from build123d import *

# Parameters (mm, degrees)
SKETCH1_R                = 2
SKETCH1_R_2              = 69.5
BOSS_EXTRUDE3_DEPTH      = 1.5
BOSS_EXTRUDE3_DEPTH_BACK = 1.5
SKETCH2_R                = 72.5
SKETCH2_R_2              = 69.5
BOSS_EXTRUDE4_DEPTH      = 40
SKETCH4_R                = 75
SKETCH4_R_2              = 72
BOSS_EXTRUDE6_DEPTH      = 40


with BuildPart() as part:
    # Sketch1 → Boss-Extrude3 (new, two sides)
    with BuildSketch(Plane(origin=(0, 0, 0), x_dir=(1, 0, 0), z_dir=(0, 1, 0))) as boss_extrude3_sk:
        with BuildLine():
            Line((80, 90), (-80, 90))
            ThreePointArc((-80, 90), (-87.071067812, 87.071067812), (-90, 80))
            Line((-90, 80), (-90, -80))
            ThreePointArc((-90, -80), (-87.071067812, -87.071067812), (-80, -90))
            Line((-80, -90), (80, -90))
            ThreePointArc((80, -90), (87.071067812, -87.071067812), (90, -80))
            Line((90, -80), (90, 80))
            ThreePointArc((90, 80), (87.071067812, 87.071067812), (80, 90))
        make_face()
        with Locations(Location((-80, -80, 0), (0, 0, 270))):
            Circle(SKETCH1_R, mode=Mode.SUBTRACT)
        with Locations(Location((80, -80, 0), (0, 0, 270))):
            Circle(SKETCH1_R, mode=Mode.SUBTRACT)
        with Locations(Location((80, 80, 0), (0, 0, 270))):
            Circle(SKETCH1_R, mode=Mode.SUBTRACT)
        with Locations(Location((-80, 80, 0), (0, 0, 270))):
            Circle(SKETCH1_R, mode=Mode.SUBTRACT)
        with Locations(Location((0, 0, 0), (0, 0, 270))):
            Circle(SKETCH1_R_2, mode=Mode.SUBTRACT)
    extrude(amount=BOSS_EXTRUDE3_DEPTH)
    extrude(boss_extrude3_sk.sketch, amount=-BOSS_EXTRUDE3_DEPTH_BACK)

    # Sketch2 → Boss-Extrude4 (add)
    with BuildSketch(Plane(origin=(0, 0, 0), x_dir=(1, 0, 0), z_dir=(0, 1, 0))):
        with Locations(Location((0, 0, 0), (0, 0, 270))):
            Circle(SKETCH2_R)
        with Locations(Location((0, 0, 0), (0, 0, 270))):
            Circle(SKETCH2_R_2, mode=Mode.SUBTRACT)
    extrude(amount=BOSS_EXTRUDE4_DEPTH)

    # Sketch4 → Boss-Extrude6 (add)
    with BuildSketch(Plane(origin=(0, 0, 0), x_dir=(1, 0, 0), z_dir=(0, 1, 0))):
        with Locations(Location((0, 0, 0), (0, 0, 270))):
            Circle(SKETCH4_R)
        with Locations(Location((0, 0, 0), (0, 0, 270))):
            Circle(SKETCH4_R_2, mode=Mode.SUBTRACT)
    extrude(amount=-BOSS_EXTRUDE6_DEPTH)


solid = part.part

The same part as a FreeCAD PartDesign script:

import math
import FreeCAD as App
import Part
import Sketcher

V = App.Vector
Q = App.Units.Quantity

doc = App.newDocument("Part")
body = doc.addObject("PartDesign::Body", "Body")

# Sketch on XZ plane
sketch1 = doc.addObject("Sketcher::SketchObject", "Sketch")
body.addObject(sketch1)
sketch1.AttachmentSupport = (doc.XZ_Plane, [""])
sketch1.MapMode = "FlatFace"
sketch1.addGeometry(Part.LineSegment(V(80, -90, 0), V(-80, -90, 0)), False)
sketch1.addGeometry(Part.ArcOfCircle(Part.Circle(V(-80, -80, 0), V(0, 0, 1), 10), math.radians(180), math.radians(270)), False)
sketch1.addGeometry(Part.LineSegment(V(-90, -80, 0), V(-90, 80, 0)), False)
sketch1.addGeometry(Part.ArcOfCircle(Part.Circle(V(-80, 80, 0), V(0, 0, 1), 10), math.radians(90), math.radians(180)), False)
sketch1.addGeometry(Part.LineSegment(V(-80, 90, 0), V(80, 90, 0)), False)
sketch1.addGeometry(Part.ArcOfCircle(Part.Circle(V(80, 80, 0), V(0, 0, 1), 10), math.radians(0), math.radians(90)), False)
sketch1.addGeometry(Part.LineSegment(V(90, 80, 0), V(90, -80, 0)), False)
sketch1.addGeometry(Part.ArcOfCircle(Part.Circle(V(80, -80, 0), V(0, 0, 1), 10), math.radians(-90), math.radians(0)), False)
sketch1.addGeometry(Part.Circle(V(-80, 80, 0), V(0, 0, 1), 2), False)
sketch1.addGeometry(Part.Circle(V(80, 80, 0), V(0, 0, 1), 2), False)
sketch1.addGeometry(Part.Circle(V(-80, -80, 0), V(0, 0, 1), 2), False)
sketch1.addGeometry(Part.Circle(V(0, 0, 0), V(0, 0, 1), 69.5), False)
sketch1.addGeometry(Part.Circle(V(80, -80, 0), V(0, 0, 1), 2), False)
sketch1.addConstraint(Sketcher.Constraint("Tangent", 0, 2, 1, 2))
sketch1.addConstraint(Sketcher.Constraint("Tangent", 1, 1, 2, 1))
sketch1.addConstraint(Sketcher.Constraint("Tangent", 2, 2, 3, 2))
sketch1.addConstraint(Sketcher.Constraint("Tangent", 3, 1, 4, 1))
sketch1.addConstraint(Sketcher.Constraint("Tangent", 4, 2, 5, 2))
sketch1.addConstraint(Sketcher.Constraint("Tangent", 5, 1, 6, 1))
sketch1.addConstraint(Sketcher.Constraint("Tangent", 6, 2, 7, 2))
sketch1.addConstraint(Sketcher.Constraint("Tangent", 7, 1, 0, 1))
sketch1.addConstraint(Sketcher.Constraint("Horizontal", 0))
sketch1.addConstraint(Sketcher.Constraint("Vertical", 2))
sketch1.addConstraint(Sketcher.Constraint("Horizontal", 4))
sketch1.addConstraint(Sketcher.Constraint("Vertical", 6))
sketch1.addConstraint(Sketcher.Constraint("Coincident", 11, 3, -1, 1))
sketch1.addConstraint(Sketcher.Constraint("Coincident", 8, 3, 3, 3))
sketch1.addConstraint(Sketcher.Constraint("Coincident", 9, 3, 5, 3))
sketch1.addConstraint(Sketcher.Constraint("Coincident", 10, 3, 1, 3))
sketch1.addConstraint(Sketcher.Constraint("Coincident", 12, 3, 7, 3))
sketch1.addConstraint(Sketcher.Constraint("Equal", 1, 3))
sketch1.addConstraint(Sketcher.Constraint("Equal", 3, 5))
sketch1.addConstraint(Sketcher.Constraint("Equal", 5, 7))
sketch1.addConstraint(Sketcher.Constraint("Equal", 8, 9))
sketch1.addConstraint(Sketcher.Constraint("Equal", 9, 10))
sketch1.addConstraint(Sketcher.Constraint("Equal", 10, 12))
sketch1.addConstraint(Sketcher.Constraint("Symmetric", 1, 3, 5, 3, -1, 1))
sketch1.addConstraint(Sketcher.Constraint("Equal", 4, 2))
sketch1.addConstraint(Sketcher.Constraint("Diameter", 8, Q("4 mm")))
sketch1.addConstraint(Sketcher.Constraint("Diameter", 11, Q("139 mm")))
sketch1.addConstraint(Sketcher.Constraint("Radius", 1, Q("10 mm")))
sketch1.addConstraint(Sketcher.Constraint("DistanceX", 0, 2, 0, 1, Q("160 mm")))
pad1 = doc.addObject("PartDesign::Pad", "Pad")
body.addObject(pad1)
pad1.Profile = sketch1
pad1.Type = "TwoLengths"
pad1.Length = 1.5
pad1.Length2 = 1.5
pad1.Reversed = True

# Sketch on XZ plane
sketch2 = doc.addObject("Sketcher::SketchObject", "Sketch001")
body.addObject(sketch2)
sketch2.AttachmentSupport = (doc.XZ_Plane, [""])
sketch2.MapMode = "FlatFace"
sketch2.addGeometry(Part.Circle(V(0, 0, 0), V(0, 0, 1), 72), False)
sketch2.addGeometry(Part.Circle(V(0, 0, 0), V(0, 0, 1), 70), False)
sketch2.addConstraint(Sketcher.Constraint("Coincident", 0, 3, -1, 1))
sketch2.addConstraint(Sketcher.Constraint("Coincident", 1, 3, -1, 1))
sketch2.addConstraint(Sketcher.Constraint("Diameter", 0, Q("145 mm")))
sketch2.addConstraint(Sketcher.Constraint("Diameter", 1, Q("139 mm")))
pad2 = doc.addObject("PartDesign::Pad", "Pad001")
body.addObject(pad2)
pad2.Profile = sketch2
pad2.Length = 40
pad2.Reversed = True

# Sketch on XZ plane
sketch3 = doc.addObject("Sketcher::SketchObject", "Sketch002")
body.addObject(sketch3)
sketch3.AttachmentSupport = (doc.XZ_Plane, [""])
sketch3.MapMode = "FlatFace"
sketch3.addGeometry(Part.Circle(V(0, 0, 0), V(0, 0, 1), 75), False)
sketch3.addGeometry(Part.Circle(V(0, 0, 0), V(0, 0, 1), 72), False)
sketch3.addConstraint(Sketcher.Constraint("Coincident", 0, 3, -1, 1))
sketch3.addConstraint(Sketcher.Constraint("Coincident", 1, 3, -1, 1))
sketch3.addConstraint(Sketcher.Constraint("Diameter", 0, Q("150 mm")))
sketch3.addConstraint(Sketcher.Constraint("Diameter", 1, Q("144 mm")))
pad3 = doc.addObject("PartDesign::Pad", "Pad002")
body.addObject(pad3)
pad3.Profile = sketch3
pad3.Length = 40

doc.recompute()
